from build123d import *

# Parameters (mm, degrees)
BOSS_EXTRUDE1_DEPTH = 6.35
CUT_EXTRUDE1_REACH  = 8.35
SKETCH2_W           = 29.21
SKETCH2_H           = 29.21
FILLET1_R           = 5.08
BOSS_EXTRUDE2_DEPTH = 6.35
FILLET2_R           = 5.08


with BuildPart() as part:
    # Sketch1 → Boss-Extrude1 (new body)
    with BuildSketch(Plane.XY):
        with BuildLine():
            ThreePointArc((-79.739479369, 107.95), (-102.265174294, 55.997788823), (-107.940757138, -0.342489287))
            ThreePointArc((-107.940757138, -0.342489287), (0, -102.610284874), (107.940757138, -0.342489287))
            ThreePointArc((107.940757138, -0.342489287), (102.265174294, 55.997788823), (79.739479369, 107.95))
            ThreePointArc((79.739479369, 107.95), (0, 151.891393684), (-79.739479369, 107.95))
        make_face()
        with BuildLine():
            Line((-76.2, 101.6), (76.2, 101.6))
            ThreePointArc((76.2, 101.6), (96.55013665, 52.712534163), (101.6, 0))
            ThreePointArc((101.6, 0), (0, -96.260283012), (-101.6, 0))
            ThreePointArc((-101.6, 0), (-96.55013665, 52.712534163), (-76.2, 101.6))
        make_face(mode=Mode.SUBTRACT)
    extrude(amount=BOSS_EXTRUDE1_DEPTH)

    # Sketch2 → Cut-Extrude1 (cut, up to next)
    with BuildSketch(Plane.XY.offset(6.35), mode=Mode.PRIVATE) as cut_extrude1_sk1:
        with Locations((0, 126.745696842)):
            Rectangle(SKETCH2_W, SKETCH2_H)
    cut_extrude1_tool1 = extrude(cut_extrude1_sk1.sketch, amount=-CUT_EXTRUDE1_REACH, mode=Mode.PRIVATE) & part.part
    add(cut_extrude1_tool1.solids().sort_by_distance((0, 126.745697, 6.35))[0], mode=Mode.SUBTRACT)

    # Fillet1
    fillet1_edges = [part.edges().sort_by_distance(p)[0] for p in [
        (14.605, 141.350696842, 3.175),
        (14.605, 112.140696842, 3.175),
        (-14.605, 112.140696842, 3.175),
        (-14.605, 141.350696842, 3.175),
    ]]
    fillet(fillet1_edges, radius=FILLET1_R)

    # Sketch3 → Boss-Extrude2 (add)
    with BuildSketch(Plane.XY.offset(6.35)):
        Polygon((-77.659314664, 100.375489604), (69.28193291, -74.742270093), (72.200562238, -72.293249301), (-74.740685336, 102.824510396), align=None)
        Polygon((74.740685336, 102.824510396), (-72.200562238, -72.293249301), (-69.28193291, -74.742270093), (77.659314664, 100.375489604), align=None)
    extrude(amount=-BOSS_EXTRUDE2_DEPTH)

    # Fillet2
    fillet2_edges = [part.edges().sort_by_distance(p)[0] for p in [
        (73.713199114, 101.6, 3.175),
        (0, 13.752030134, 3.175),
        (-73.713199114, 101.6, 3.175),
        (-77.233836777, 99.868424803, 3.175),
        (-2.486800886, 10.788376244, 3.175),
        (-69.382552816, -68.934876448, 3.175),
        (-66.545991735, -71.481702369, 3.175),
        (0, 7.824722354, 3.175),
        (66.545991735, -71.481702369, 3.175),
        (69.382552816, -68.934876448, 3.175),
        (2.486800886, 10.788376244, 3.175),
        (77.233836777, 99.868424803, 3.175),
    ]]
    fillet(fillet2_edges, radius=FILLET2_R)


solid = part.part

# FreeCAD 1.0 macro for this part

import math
import FreeCAD as App
import Part
import Sketcher

V = App.Vector
Q = App.Units.Quantity


def edges_at(feature, points):
    """Names of the edges that pass closest to the given points."""
    edges = feature.Shape.Edges
    near = lambda p: min(range(len(edges)), key=lambda i: edges[i].distToShape(Part.Vertex(*p))[0])
    return sorted({f"Edge{near(p) + 1}" for p in points})

doc = App.newDocument("Part")
body = doc.addObject("PartDesign::Body", "Body")

sketch1 = doc.addObject("Sketcher::SketchObject", "Sketch")
body.addObject(sketch1)
sketch1.AttachmentSupport = (doc.XY_Plane, [""])
sketch1.MapMode = "FlatFace"
sketch1.addGeometry(Part.ArcOfCircle(Part.Circle(V(76, 10, 0), V(0, 0, 1), 184), math.radians(148), math.radians(183)), False)
sketch1.addGeometry(Part.ArcOfCircle(Part.Circle(V(0, 5, 0), V(0, 0, 1), 108), math.radians(-177), math.radians(-3)), False)
sketch1.addGeometry(Part.ArcOfCircle(Part.Circle(V(-76, 10, 0), V(0, 0, 1), 184), math.radians(-3), math.radians(32)), False)
sketch1.addGeometry(Part.ArcOfCircle(Part.Circle(V(0, 58, 0), V(0, 0, 1), 94), math.radians(32), math.radians(148)), False)
sketch1.addGeometry(Part.ArcOfCircle(Part.Circle(V(76, 10, 0), V(0, 0, 1), 178), math.radians(149), math.radians(183)), False)
sketch1.addGeometry(Part.LineSegment(V(-76, 102, 0), V(76, 102, 0)), False)
sketch1.addGeometry(Part.ArcOfCircle(Part.Circle(V(-76, 10, 0), V(0, 0, 1), 178), math.radians(-3), math.radians(31)), False)
sketch1.addGeometry(Part.ArcOfCircle(Part.Circle(V(0, 5, 0), V(0, 0, 1), 102), math.radians(-177), math.radians(-3)), False)
sketch1.addConstraint(Sketcher.Constraint("Tangent", 0, 2, 1, 1))
sketch1.addConstraint(Sketcher.Constraint("Tangent", 1, 2, 2, 1))
sketch1.addConstraint(Sketcher.Constraint("Tangent", 2, 2, 3, 1))
sketch1.addConstraint(Sketcher.Constraint("Tangent", 3, 2, 0, 1))
sketch1.addConstraint(Sketcher.Constraint("Coincident", 4, 1, 5, 1))
sketch1.addConstraint(Sketcher.Constraint("Coincident", 5, 2, 6, 2))
sketch1.addConstraint(Sketcher.Constraint("Tangent", 6, 1, 7, 2))
sketch1.addConstraint(Sketcher.Constraint("Tangent", 7, 1, 4, 2))
sketch1.addConstraint(Sketcher.Constraint("Horizontal", 5))
sketch1.addConstraint(Sketcher.Constraint("Coincident", 4, 3, 0, 3))
sketch1.addConstraint(Sketcher.Constraint("Coincident", 6, 3, 2, 3))
sketch1.addConstraint(Sketcher.Constraint("Coincident", 7, 3, 1, 3))
sketch1.addConstraint(Sketcher.Constraint("Equal", 0, 2))
sketch1.addConstraint(Sketcher.Constraint("Symmetric", 6, 1, 7, 1, -1, 1))
sketch1.addConstraint(Sketcher.Constraint("PointOnObject", 1, 3, -2))
sketch1.addConstraint(Sketcher.Constraint("Radius", 4, Q("7 in")))
sketch1.addConstraint(Sketcher.Constraint("DistanceX", 5, 1, 5, 2, Q("6 in")))
sketch1.addConstraint(Sketcher.Constraint("Radius", 0, Q("7.25 in")))
sketch1.addConstraint(Sketcher.Constraint("DistanceY", -1, 1, 4, 1, Q("4 in")))
sketch1.addConstraint(Sketcher.Constraint("DistanceX", -1, 1, 6, 1, Q("4 in")))
sketch1.addConstraint(Sketcher.Constraint("DistanceY", -1, 1, 2, 2, Q("4.25 in")))
pad1 = doc.addObject("PartDesign::Pad", "Pad")
body.addObject(pad1)
pad1.Profile = sketch1
pad1.Length = Q("0.25 in")

sketch2 = doc.addObject("Sketcher::SketchObject", "Sketch001")
body.addObject(sketch2)
sketch2.AttachmentSupport = (doc.XY_Plane, [""])
sketch2.MapMode = "FlatFace"
sketch2.AttachmentOffset = App.Placement(V(0, 0, 0.25 * 25.4), App.Rotation())
sketch2.addGeometry(Part.LineSegment(V(-15, 141, 0), V(-15, 112, 0)), False)
sketch2.addGeometry(Part.LineSegment(V(-15, 112, 0), V(15, 112, 0)), False)
sketch2.addGeometry(Part.LineSegment(V(15, 112, 0), V(15, 141, 0)), False)
sketch2.addGeometry(Part.LineSegment(V(15, 141, 0), V(-15, 141, 0)), False)
sketch2.addConstraint(Sketcher.Constraint("Coincident", 0, 2, 1, 1))
sketch2.addConstraint(Sketcher.Constraint("Coincident", 1, 2, 2, 1))
sketch2.addConstraint(Sketcher.Constraint("Coincident", 2, 2, 3, 1))
sketch2.addConstraint(Sketcher.Constraint("Coincident", 3, 2, 0, 1))
sketch2.addConstraint(Sketcher.Constraint("Vertical", 0))
sketch2.addConstraint(Sketcher.Constraint("Horizontal", 1))
sketch2.addConstraint(Sketcher.Constraint("Vertical", 2))
sketch2.addConstraint(Sketcher.Constraint("Horizontal", 3))
sketch2.addConstraint(Sketcher.Constraint("Equal", 3, 0))
sketch2.addConstraint(Sketcher.Constraint("DistanceX", 1, 1, 1, 2, Q("1.15 in")))
sketch2.addConstraint(Sketcher.Constraint("DistanceX", 0, 2, -1, 1, Q("0.575 in")))
sketch2.addConstraint(Sketcher.Constraint("DistanceY", -1, 1, 0, 2, 112.140697))
pocket1 = doc.addObject("PartDesign::Pocket", "Pocket")
body.addObject(pocket1)
pocket1.Profile = sketch2
pocket1.Type = "UpToFirst"
doc.recompute()

fillet = doc.addObject("PartDesign::Fillet", "Fillet")
body.addObject(fillet)
fillet.Base = (pocket1, edges_at(pocket1, [
    (14.605, 141.351, 3.175),
    (14.605, 112.141, 3.175),
    (-14.605, 112.141, 3.175),
    (-14.605, 141.351, 3.175),
]))
fillet.Radius = Q("0.2 in")

sketch3 = doc.addObject("Sketcher::SketchObject", "Sketch002")
body.addObject(sketch3)
sketch3.AttachmentSupport = (doc.XY_Plane, [""])
sketch3.MapMode = "FlatFace"
sketch3.AttachmentOffset = App.Placement(V(0, 0, 0.25 * 25.4), App.Rotation())
sketch3.addGeometry(Part.LineSegment(V(-74.7, 102.8, 0), V(-77.7, 100.4, 0)), False)
sketch3.addGeometry(Part.LineSegment(V(-77.7, 100.4, 0), V(-2.5, 10.8, 0)), False)
sketch3.addGeometry(Part.LineSegment(V(-2.5, 10.8, 0), V(-72.2, -72.3, 0)), False)
sketch3.addGeometry(Part.LineSegment(V(-72.2, -72.3, 0), V(-69.3, -74.7, 0)), False)
sketch3.addGeometry(Part.LineSegment(V(-69.3, -74.7, 0), V(0, 7.8, 0)), False)
sketch3.addGeometry(Part.LineSegment(V(0, 7.8, 0), V(69.3, -74.7, 0)), False)
sketch3.addGeometry(Part.LineSegment(V(69.3, -74.7, 0), V(72.2, -72.3, 0)), False)
sketch3.addGeometry(Part.LineSegment(V(72.2, -72.3, 0), V(2.5, 10.8, 0)), False)
sketch3.addGeometry(Part.LineSegment(V(2.5, 10.8, 0), V(77.7, 100.4, 0)), False)
sketch3.addGeometry(Part.LineSegment(V(77.7, 100.4, 0), V(74.7, 102.8, 0)), False)
sketch3.addGeometry(Part.LineSegment(V(74.7, 102.8, 0), V(0, 13.8, 0)), False)
sketch3.addGeometry(Part.LineSegment(V(0, 13.8, 0), V(-74.7, 102.8, 0)), False)
sketch3.addConstraint(Sketcher.Constraint("Coincident", 0, 2, 1, 1))
sketch3.addConstraint(Sketcher.Constraint("Coincident", 1, 2, 2, 1))
sketch3.addConstraint(Sketcher.Constraint("Coincident", 2, 2, 3, 1))
sketch3.addConstraint(Sketcher.Constraint("Coincident", 3, 2, 4, 1))
sketch3.addConstraint(Sketcher.Constraint("Coincident", 4, 2, 5, 1))
sketch3.addConstraint(Sketcher.Constraint("Coincident", 5, 2, 6, 1))
sketch3.addConstraint(Sketcher.Constraint("Coincident", 6, 2, 7, 1))
sketch3.addConstraint(Sketcher.Constraint("Coincident", 7, 2, 8, 1))
sketch3.addConstraint(Sketcher.Constraint("Coincident", 8, 2, 9, 1))
sketch3.addConstraint(Sketcher.Constraint("Coincident", 9, 2, 10, 1))
sketch3.addConstraint(Sketcher.Constraint("Coincident", 10, 2, 11, 1))
sketch3.addConstraint(Sketcher.Constraint("Coincident", 11, 2, 0, 1))
sketch3.addConstraint(Sketcher.Constraint("Symmetric", 3, 2, 5, 2, -2))
sketch3.addConstraint(Sketcher.Constraint("Symmetric", 2, 2, 6, 2, -2))
sketch3.addConstraint(Sketcher.Constraint("Symmetric", 1, 2, 7, 2, -2))
sketch3.addConstraint(Sketcher.Constraint("Symmetric", 0, 2, 8, 2, -2))
sketch3.addConstraint(Sketcher.Constraint("Symmetric", 9, 2, 11, 2, -2))
sketch3.addConstraint(Sketcher.Constraint("PointOnObject", 4, 2, -2))
sketch3.addConstraint(Sketcher.Constraint("PointOnObject", 10, 2, -2))
sketch3.addConstraint(Sketcher.Constraint("Perpendicular", 0, 1))
sketch3.addConstraint(Sketcher.Constraint("Perpendicular", 2, 3))
sketch3.addConstraint(Sketcher.Constraint("Perpendicular", 3, 4))
sketch3.addConstraint(Sketcher.Constraint("Parallel", 1, 5))
sketch3.addConstraint(Sketcher.Constraint("Perpendicular", 9, 10))
sketch3.addConstraint(Sketcher.Constraint("Equal", 0, 3))
sketch3.addConstraint(Sketcher.Constraint("Angle", 0, Q("-140 deg")))
sketch3.addConstraint(Sketcher.Constraint("DistanceX", 0, 2, 9, 2, Q("6 in")))
sketch3.addConstraint(Sketcher.Constraint("Distance", 0, Q("0.15 in")))
sketch3.addConstraint(Sketcher.Constraint("DistanceY", 3, 2, 0, 2, Q("6.8944 in")))
sketch3.addConstraint(Sketcher.Constraint("DistanceX", 1, 2, -1, 1, 2.486801))
sketch3.addConstraint(Sketcher.Constraint("DistanceY", -1, 1, 0, 2, 100.37549))
pad2 = doc.addObject("PartDesign::Pad", "Pad001")
body.addObject(pad2)
pad2.Profile = sketch3
pad2.Length = Q("0.25 in")
pad2.Reversed = True
doc.recompute()

fillet2 = doc.addObject("PartDesign::Fillet", "Fillet001")
body.addObject(fillet2)
fillet2.Base = (pad2, edges_at(pad2, [
    (73.713, 101.6, 3.175),
    (0, 13.752, 3.175),
    (-73.713, 101.6, 3.175),
    (-77.234, 99.868, 3.175),
    (-2.487, 10.788, 3.175),
    (-69.383, -68.935, 3.175),
    (-66.546, -71.482, 3.175),
    (0, 7.825, 3.175),
    (66.546, -71.482, 3.175),
    (69.383, -68.935, 3.175),
    (2.487, 10.788, 3.175),
    (77.234, 99.868, 3.175),
]))
fillet2.Radius = Q("0.2 in")

doc.recompute()
